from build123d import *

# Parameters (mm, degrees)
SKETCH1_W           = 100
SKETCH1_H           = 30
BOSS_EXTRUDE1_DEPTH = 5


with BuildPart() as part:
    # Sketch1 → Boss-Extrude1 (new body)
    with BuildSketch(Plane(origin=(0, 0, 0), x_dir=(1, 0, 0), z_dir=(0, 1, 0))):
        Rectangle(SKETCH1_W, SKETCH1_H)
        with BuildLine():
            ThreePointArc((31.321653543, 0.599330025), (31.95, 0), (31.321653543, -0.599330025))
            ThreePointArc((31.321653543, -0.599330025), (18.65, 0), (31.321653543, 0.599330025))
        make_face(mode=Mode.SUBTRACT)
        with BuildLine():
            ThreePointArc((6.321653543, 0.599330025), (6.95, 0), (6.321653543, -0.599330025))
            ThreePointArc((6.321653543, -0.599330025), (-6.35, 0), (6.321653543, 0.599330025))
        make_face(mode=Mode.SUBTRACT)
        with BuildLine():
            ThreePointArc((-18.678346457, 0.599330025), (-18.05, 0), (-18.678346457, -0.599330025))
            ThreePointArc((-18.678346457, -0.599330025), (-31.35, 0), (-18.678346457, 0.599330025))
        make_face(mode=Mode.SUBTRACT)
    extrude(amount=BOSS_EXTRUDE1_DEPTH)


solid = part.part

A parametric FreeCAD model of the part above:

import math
import FreeCAD as App
import Part
import Sketcher


def add_polygon(sketch, points):
    """Adds a closed chain of lines whose ends are joined by coincident constraints."""
    first, n = sketch.GeometryCount, len(points)
    for a, b in zip(points, points[1:] + points[:1]):
        sketch.addGeometry(Part.LineSegment(App.Vector(*a, 0), App.Vector(*b, 0)), False)
    for i in range(n):
        sketch.addConstraint(Sketcher.Constraint("Coincident", first + i, 2, first + (i + 1) % n, 1))

doc = App.newDocument("Part")
body = doc.addObject("PartDesign::Body", "Body")

# Sketch on XZ plane
sketch1 = body.newObject("Sketcher::SketchObject", "Sketch")
sketch1.AttachmentSupport = (doc.getObject("XZ_Plane"), [""])
sketch1.MapMode = "FlatFace"
add_polygon(sketch1, [(-50, -15), (-50, 15), (50, 15), (50, -15)])  # lines 0-3
sketch1.addGeometry(Part.ArcOfCircle(Part.Circle(App.Vector(-25, 0, 0), App.Vector(0, 0, 1), 6.3), math.radians(5), math.radians(355)), False)  # 4
sketch1.addGeometry(Part.ArcOfCircle(Part.Circle(App.Vector(-18.6, 0, 0), App.Vector(0, 0, 1), 0.6), math.radians(-93), math.radians(93)), False)  # 5
sketch1.addGeometry(Part.ArcOfCircle(Part.Circle(App.Vector(0, 0, 0), App.Vector(0, 0, 1), 6.3), math.radians(5), math.radians(355)), False)  # 6
sketch1.addGeometry(Part.ArcOfCircle(Part.Circle(App.Vector(6.3, 0, 0), App.Vector(0, 0, 1), 0.6), math.radians(-93), math.radians(93)), False)  # 7
sketch1.addGeometry(Part.ArcOfCircle(Part.Circle(App.Vector(25, 0, 0), App.Vector(0, 0, 1), 6.3), math.radians(5), math.radians(355)), False)  # 8
sketch1.addGeometry(Part.ArcOfCircle(Part.Circle(App.Vector(31.4, 0, 0), App.Vector(0, 0, 1), 0.6), math.radians(-93), math.radians(93)), False)  # 9
sketch1.addConstraint([
    Sketcher.Constraint("Coincident", 4, 1, 5, 2),
    Sketcher.Constraint("Coincident", 5, 1, 4, 2),
    Sketcher.Constraint("Coincident", 6, 1, 7, 2),
    Sketcher.Constraint("Coincident", 7, 1, 6, 2),
    Sketcher.Constraint("Coincident", 8, 1, 9, 2),
    Sketcher.Constraint("Coincident", 9, 1, 8, 2),
    Sketcher.Constraint("Vertical", 0),
    Sketcher.Constraint("Horizontal", 1),
    Sketcher.Constraint("Vertical", 2),
    Sketcher.Constraint("Horizontal", 3),
    Sketcher.Constraint("Coincident", 6, 3, -1, 1),
    Sketcher.Constraint("Equal", 4, 6),
    Sketcher.Constraint("Equal", 5, 7),
    Sketcher.Constraint("Equal", 6, 8),
    Sketcher.Constraint("Equal", 7, 9),
    Sketcher.Constraint("Symmetric", 4, 3, 8, 3, -1, 1),
    Sketcher.Constraint("Symmetric", 0, 2, 2, 2, -1, 1),
    Sketcher.Constraint("Symmetric", 4, 1, 5, 1, -1),
    Sketcher.Constraint("PointOnObject", 7, 3, -1),
    Sketcher.Constraint("PointOnObject", 9, 3, -1),
    Sketcher.Constraint("Horizontal", 4, 1, 6, 1),
    Sketcher.Constraint("Horizontal", 6, 1, 8, 1),
    Sketcher.Constraint("Radius", 5, 0.6),
    Sketcher.Constraint("DistanceX", 1, 1, 1, 2, 100.0),
    Sketcher.Constraint("DistanceY", 0, 1, 0, 2, 30.0),
    Sketcher.Constraint("Radius", 4, 6.35),
    Sketcher.Constraint("DistanceX", 4, 3, -1, 1, 25.0),
    Sketcher.Constraint("DistanceX", 5, 3, -1, 1, 18.65),
])
pad1 = body.newObject("PartDesign::Pad", "Pad")
pad1.Profile = sketch1
pad1.Length = 5
pad1.Reversed = True

doc.recompute()
